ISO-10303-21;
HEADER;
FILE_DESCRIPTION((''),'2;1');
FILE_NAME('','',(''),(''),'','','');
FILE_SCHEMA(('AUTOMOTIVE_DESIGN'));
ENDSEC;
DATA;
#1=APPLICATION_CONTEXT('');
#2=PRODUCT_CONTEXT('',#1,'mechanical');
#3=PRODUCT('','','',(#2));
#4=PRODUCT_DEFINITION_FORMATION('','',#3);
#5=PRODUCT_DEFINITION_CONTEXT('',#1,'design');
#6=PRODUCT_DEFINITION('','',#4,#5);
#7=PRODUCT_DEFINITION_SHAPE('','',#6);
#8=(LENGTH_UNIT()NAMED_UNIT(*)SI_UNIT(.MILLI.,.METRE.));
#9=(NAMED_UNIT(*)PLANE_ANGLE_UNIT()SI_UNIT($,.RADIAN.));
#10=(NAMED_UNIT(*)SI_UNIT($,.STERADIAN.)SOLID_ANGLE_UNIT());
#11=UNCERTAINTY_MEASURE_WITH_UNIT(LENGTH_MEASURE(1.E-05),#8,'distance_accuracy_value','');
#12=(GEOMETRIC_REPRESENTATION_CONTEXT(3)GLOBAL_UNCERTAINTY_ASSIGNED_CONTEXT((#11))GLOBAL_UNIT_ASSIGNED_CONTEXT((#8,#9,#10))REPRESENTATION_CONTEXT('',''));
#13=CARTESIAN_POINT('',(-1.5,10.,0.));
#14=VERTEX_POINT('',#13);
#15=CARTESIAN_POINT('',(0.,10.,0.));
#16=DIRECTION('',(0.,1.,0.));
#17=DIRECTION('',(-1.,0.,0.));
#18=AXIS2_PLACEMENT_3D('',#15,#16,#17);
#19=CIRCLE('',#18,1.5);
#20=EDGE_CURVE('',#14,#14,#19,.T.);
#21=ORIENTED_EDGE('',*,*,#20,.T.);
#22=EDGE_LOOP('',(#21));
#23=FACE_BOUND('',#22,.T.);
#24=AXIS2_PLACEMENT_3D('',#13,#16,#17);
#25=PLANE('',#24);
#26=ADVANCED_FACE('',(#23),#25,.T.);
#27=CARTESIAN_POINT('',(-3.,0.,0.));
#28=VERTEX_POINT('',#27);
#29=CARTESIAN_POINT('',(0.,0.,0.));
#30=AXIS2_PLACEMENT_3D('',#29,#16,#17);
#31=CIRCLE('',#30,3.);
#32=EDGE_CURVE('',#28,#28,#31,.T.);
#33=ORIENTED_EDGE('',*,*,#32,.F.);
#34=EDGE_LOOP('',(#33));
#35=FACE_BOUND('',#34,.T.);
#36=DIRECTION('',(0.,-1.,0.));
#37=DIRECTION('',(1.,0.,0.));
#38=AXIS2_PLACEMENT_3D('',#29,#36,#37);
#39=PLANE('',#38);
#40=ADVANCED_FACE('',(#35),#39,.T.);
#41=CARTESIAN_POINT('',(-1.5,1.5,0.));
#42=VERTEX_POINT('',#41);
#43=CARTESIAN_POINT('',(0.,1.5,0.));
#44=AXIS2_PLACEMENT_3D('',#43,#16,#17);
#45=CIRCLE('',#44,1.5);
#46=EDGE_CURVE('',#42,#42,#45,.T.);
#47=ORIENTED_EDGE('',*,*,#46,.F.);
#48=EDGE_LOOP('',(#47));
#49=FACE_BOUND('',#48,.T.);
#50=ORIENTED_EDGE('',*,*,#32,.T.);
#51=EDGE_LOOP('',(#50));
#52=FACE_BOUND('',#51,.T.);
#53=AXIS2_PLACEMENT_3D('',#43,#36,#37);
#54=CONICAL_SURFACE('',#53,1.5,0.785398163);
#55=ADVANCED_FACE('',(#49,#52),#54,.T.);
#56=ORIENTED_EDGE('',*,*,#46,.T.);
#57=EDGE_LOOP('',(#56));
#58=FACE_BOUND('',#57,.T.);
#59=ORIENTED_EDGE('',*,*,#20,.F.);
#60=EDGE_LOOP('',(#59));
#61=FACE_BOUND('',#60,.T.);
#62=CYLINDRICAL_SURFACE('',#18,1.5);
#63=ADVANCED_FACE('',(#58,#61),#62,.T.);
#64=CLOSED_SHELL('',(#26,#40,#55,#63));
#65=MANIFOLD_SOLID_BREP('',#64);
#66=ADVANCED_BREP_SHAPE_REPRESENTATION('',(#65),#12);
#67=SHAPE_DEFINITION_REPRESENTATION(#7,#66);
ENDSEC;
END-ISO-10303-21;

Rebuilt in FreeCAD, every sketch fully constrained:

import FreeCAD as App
import Part
import Sketcher
from FreeCAD import Vector
Q = App.Units.Quantity


def add_polygon(sketch, points):
    """Adds a closed chain of lines whose ends are joined by coincident constraints."""
    first, n = sketch.GeometryCount, len(points)
    for a, b in zip(points, points[1:] + points[:1]):
        sketch.addGeometry(Part.LineSegment(App.Vector(*a, 0), App.Vector(*b, 0)), False)
    for i in range(n):
        sketch.addConstraint(Sketcher.Constraint("Coincident", first + i, 2, first + (i + 1) % n, 1))

doc = App.newDocument("Part")
body = doc.addObject("PartDesign::Body", "Body")

sketch1 = doc.addObject("Sketcher::SketchObject", "Sketch")
body.addObject(sketch1)
sketch1.AttachmentSupport = (doc.XY_Plane, [""])
sketch1.MapMode = "FlatFace"
add_polygon(sketch1, [(-3, 0), (0, 0), (0, 10), (-1.5, 10), (-1.5, 1.5)])
sketch1.addConstraint(Sketcher.Constraint("Horizontal", 0))
sketch1.addConstraint(Sketcher.Constraint("Vertical", 1))
sketch1.addConstraint(Sketcher.Constraint("Horizontal", 2))
sketch1.addConstraint(Sketcher.Constraint("Vertical", 3))
sketch1.addConstraint(Sketcher.Constraint("Coincident", 0, 2, -1, 1))
sketch1.addConstraint(Sketcher.Constraint("DistanceX", 0, 1, 0, 2, Q("3 mm")))
sketch1.addConstraint(Sketcher.Constraint("DistanceY", 1, 1, 1, 2, Q("10 mm")))
sketch1.addConstraint(Sketcher.Constraint("Angle", 4, Q("-135 deg")))
sketch1.addConstraint(Sketcher.Constraint("DistanceX", 2, 2, 2, 1, Q("1.5 mm")))
revolution = doc.addObject("PartDesign::Revolution", "Revolution")
body.addObject(revolution)
revolution.Profile = sketch1
revolution.ReferenceAxis = (sketch1, ["V_Axis"])
revolution.Angle = 360

doc.recompute()
